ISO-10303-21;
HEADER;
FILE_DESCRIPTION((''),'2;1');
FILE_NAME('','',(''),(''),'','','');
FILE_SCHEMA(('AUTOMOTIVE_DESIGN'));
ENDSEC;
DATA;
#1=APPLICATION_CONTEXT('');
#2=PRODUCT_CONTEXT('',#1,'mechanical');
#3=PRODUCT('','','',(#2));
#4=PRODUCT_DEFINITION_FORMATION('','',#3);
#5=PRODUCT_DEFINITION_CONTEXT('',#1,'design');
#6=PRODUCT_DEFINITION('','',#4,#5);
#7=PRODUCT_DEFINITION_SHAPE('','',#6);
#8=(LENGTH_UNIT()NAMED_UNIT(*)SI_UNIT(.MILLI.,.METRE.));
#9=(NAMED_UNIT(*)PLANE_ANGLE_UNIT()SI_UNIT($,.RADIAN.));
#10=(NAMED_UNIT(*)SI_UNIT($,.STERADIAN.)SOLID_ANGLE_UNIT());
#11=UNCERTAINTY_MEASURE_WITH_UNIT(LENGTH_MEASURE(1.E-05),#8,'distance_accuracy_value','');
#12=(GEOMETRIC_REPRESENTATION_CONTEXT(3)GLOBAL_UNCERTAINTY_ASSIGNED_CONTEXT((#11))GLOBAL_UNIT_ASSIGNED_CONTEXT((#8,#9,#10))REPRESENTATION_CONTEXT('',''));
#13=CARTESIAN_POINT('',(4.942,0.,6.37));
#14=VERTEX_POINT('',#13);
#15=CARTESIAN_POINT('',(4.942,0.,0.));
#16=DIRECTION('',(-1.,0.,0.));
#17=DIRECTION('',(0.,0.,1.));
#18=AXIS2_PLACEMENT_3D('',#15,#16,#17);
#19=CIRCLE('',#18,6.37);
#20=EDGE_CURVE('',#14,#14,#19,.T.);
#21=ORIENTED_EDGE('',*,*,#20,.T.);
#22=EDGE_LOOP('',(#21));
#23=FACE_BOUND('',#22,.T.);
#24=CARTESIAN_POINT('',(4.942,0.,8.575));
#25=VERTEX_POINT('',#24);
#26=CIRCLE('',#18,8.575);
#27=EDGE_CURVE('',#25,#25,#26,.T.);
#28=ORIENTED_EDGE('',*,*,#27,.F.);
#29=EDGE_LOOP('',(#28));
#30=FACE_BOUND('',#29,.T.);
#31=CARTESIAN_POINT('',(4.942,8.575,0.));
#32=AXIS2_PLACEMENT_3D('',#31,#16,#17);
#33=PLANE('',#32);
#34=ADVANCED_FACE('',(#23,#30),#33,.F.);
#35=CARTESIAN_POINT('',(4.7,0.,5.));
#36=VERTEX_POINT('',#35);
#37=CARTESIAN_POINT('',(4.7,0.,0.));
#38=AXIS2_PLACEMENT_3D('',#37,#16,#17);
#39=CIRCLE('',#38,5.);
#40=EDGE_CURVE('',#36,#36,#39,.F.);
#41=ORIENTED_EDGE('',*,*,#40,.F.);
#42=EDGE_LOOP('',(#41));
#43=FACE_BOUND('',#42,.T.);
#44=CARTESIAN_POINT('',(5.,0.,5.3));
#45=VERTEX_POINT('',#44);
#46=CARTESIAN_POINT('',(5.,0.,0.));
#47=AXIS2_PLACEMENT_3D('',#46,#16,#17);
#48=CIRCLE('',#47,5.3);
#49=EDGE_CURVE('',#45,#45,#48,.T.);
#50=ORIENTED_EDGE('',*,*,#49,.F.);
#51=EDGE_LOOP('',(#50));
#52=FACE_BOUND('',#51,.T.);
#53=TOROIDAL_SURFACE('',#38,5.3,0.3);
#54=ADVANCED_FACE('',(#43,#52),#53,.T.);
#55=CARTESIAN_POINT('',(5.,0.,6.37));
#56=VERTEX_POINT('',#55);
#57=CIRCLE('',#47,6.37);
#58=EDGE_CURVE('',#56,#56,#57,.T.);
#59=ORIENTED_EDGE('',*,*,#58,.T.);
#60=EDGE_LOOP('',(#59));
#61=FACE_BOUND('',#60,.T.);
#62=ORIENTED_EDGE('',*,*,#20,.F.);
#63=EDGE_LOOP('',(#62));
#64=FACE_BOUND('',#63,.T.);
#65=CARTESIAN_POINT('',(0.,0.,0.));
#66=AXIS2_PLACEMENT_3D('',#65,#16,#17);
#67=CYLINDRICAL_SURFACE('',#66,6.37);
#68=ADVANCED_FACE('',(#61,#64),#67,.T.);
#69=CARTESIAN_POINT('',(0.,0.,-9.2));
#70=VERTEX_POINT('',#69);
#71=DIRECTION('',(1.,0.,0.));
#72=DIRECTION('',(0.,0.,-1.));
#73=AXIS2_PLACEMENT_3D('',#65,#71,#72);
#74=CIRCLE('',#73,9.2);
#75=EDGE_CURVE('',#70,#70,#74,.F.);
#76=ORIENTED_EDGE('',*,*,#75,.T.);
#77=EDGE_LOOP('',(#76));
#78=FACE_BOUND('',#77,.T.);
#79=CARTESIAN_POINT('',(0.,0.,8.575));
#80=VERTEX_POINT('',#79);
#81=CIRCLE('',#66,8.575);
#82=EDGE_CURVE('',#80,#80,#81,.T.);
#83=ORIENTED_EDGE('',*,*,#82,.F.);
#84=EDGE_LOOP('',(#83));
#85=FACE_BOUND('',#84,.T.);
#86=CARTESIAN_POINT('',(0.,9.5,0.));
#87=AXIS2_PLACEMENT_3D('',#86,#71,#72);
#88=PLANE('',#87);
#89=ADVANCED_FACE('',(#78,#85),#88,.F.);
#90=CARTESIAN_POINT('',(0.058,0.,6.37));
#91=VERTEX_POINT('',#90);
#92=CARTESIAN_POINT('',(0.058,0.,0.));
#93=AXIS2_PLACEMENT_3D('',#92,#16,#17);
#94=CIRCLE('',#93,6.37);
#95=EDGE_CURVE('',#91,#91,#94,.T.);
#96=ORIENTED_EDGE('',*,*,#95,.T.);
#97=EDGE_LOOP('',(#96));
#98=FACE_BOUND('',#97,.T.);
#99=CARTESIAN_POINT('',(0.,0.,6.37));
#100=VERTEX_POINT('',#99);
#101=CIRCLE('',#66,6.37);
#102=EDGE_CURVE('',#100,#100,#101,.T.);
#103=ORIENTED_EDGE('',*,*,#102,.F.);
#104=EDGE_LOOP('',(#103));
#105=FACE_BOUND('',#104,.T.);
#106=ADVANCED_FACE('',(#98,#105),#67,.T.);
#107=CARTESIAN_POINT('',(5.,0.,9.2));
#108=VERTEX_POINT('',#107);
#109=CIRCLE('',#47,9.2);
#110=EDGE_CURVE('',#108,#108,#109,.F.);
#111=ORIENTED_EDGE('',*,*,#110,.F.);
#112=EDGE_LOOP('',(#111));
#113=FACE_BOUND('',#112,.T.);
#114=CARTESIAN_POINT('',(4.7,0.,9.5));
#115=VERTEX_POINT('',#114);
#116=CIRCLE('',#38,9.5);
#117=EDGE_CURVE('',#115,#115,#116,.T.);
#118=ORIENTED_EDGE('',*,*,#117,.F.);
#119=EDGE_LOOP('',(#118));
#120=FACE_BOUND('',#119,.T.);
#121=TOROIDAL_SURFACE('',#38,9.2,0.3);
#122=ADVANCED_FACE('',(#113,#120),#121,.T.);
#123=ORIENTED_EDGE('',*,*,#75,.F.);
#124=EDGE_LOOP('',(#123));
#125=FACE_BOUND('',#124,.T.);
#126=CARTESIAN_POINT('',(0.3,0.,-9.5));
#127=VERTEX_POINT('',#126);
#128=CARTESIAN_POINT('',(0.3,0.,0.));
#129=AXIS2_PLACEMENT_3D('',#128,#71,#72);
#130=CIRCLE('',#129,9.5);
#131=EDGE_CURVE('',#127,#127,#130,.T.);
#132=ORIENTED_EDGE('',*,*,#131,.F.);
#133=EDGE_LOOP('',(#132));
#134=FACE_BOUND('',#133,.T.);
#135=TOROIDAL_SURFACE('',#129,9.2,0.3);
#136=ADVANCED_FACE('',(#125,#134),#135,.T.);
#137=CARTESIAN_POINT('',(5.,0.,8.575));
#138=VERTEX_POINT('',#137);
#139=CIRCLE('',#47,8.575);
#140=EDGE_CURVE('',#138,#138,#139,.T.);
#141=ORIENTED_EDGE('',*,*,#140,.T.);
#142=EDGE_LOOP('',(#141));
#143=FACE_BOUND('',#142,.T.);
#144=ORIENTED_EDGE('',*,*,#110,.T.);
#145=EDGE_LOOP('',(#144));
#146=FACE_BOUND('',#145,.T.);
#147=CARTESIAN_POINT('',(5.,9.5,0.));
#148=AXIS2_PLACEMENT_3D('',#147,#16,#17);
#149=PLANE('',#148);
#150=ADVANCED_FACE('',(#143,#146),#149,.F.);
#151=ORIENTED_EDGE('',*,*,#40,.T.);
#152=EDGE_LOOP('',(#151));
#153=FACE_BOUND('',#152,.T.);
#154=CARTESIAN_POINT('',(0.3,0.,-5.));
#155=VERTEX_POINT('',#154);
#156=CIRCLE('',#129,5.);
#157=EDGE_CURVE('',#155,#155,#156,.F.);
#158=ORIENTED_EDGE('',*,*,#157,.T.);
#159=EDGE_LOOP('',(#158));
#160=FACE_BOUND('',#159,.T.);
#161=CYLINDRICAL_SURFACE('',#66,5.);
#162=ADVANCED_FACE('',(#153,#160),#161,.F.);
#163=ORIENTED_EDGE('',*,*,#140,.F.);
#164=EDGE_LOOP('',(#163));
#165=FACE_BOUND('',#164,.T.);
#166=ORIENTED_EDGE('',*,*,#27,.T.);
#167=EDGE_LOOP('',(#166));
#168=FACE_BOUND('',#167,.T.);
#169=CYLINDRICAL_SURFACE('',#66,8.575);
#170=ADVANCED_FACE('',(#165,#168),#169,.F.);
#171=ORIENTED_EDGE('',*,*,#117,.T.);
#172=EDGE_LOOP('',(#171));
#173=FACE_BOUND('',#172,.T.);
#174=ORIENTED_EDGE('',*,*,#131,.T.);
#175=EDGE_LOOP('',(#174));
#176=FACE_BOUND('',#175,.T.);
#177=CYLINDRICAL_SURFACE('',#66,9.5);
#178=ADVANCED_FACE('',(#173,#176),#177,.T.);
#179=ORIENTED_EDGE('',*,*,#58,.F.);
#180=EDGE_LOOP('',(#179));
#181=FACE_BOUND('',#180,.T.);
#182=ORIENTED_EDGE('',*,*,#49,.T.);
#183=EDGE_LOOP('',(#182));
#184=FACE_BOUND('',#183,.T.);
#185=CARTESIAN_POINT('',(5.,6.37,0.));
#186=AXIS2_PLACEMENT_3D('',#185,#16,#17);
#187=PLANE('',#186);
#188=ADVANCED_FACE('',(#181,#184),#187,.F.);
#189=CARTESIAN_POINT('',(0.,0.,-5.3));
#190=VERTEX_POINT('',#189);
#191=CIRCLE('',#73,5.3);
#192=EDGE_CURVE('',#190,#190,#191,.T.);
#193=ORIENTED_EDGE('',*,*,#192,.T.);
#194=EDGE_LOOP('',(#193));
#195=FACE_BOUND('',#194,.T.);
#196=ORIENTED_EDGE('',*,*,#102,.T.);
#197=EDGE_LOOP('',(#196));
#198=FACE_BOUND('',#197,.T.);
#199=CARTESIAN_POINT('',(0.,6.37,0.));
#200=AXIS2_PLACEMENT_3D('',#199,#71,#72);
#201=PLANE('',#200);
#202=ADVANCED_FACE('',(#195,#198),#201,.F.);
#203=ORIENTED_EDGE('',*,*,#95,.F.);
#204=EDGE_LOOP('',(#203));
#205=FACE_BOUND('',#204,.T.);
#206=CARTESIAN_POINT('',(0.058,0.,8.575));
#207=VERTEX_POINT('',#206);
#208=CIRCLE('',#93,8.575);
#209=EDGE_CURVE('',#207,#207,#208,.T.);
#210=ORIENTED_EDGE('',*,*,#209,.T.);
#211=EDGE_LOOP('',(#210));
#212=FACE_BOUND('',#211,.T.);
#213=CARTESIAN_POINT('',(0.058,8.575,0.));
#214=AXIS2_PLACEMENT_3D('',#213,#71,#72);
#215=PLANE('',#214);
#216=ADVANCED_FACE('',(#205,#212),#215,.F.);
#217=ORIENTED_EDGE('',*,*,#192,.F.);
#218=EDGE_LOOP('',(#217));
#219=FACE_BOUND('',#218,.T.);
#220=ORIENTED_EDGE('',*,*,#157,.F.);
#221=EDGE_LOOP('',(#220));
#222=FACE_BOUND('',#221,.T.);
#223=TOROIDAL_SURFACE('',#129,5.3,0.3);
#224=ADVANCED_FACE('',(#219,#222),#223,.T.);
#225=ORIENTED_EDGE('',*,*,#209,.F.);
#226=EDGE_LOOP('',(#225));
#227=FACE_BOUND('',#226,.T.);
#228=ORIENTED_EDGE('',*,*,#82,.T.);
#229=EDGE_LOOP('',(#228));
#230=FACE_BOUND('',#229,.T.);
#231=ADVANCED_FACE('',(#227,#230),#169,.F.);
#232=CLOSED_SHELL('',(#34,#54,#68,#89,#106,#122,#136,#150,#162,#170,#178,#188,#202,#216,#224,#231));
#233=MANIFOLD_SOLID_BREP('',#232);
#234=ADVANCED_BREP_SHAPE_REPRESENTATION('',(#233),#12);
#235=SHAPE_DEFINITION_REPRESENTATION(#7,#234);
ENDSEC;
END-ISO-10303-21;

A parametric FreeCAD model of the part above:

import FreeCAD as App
import Part
import Sketcher
from FreeCAD import Vector


def edges_at(feature, points):
    """Names of the edges that pass closest to the given points."""
    edges = feature.Shape.Edges
    near = lambda p: min(range(len(edges)), key=lambda i: edges[i].distToShape(Part.Vertex(*p))[0])
    return sorted({f"Edge{near(p) + 1}" for p in points})


def add_polygon(sketch, points):
    """Adds a closed chain of lines whose ends are joined by coincident constraints."""
    first, n = sketch.GeometryCount, len(points)
    for a, b in zip(points, points[1:] + points[:1]):
        sketch.addGeometry(Part.LineSegment(App.Vector(*a, 0), App.Vector(*b, 0)), False)
    for i in range(n):
        sketch.addConstraint(Sketcher.Constraint("Coincident", first + i, 2, first + (i + 1) % n, 1))

doc = App.newDocument("Part")
body = doc.addObject("PartDesign::Body", "Body")

# Sketch on XY plane
sketch1 = doc.addObject("Sketcher::SketchObject", "Sketch")
body.addObject(sketch1)
sketch1.AttachmentSupport = (doc.XY_Plane, [""])
sketch1.MapMode = "FlatFace"
add_polygon(sketch1, [(0, 5), (5, 5), (5, 6.37), (4.942, 6.37), (4.942, 8.575), (5, 8.575), (5, 9.5), (0, 9.5), (0, 8.575), (0.058, 8.575), (0.058, 6.37), (0, 6.37)])  # lines 0-11
sketch1.addConstraint([
    Sketcher.Constraint("Horizontal", 0),
    Sketcher.Constraint("Vertical", 1),
    Sketcher.Constraint("Horizontal", 2),
    Sketcher.Constraint("Vertical", 3),
    Sketcher.Constraint("Horizontal", 4),
    Sketcher.Constraint("Vertical", 5),
    Sketcher.Constraint("Horizontal", 6),
    Sketcher.Constraint("Vertical", 7),
    Sketcher.Constraint("Horizontal", 8),
    Sketcher.Constraint("Vertical", 9),
    Sketcher.Constraint("Horizontal", 10),
    Sketcher.Constraint("Vertical", 11),
    Sketcher.Constraint("PointOnObject", 6, 2, -2),
    Sketcher.Constraint("PointOnObject", 10, 2, -2),
    Sketcher.Constraint("Horizontal", 4, 2, 7, 2),
    Sketcher.Constraint("Horizontal", 2, 2, 9, 2),
    Sketcher.Constraint("Vertical", 1, 2, 4, 2),
    Sketcher.Constraint("Equal", 4, 8),
    Sketcher.Constraint("DistanceX", 0, 1, 0, 2, 5.0),
    Sketcher.Constraint("DistanceY", -1, 1, 0, 2, 5.0),
    Sketcher.Constraint("DistanceY", 1, 1, 1, 2, 1.37),
    Sketcher.Constraint("DistanceY", -1, 1, 5, 2, 9.5),
    Sketcher.Constraint("DistanceX", 2, 2, 2, 1, 0.058),
    Sketcher.Constraint("DistanceY", 3, 1, 3, 2, 2.205),
])
revolution = doc.addObject("PartDesign::Revolution", "Revolution")
body.addObject(revolution)
revolution.Profile = sketch1
revolution.ReferenceAxis = (sketch1, ["H_Axis"])
revolution.Angle = 360
doc.recompute()

fillet = doc.addObject("PartDesign::Fillet", "Fillet")
body.addObject(fillet)
fillet.Base = (revolution, edges_at(revolution, [(0, 0, -9.5), (5, 0, -9.5)]))
fillet.Radius = 0.3
doc.recompute()

fillet2 = doc.addObject("PartDesign::Fillet", "Fillet001")
body.addObject(fillet2)
fillet2.Base = (fillet, edges_at(fillet, [(5, 0, -5), (0, 0, -5)]))
fillet2.Radius = 0.3

doc.recompute()
